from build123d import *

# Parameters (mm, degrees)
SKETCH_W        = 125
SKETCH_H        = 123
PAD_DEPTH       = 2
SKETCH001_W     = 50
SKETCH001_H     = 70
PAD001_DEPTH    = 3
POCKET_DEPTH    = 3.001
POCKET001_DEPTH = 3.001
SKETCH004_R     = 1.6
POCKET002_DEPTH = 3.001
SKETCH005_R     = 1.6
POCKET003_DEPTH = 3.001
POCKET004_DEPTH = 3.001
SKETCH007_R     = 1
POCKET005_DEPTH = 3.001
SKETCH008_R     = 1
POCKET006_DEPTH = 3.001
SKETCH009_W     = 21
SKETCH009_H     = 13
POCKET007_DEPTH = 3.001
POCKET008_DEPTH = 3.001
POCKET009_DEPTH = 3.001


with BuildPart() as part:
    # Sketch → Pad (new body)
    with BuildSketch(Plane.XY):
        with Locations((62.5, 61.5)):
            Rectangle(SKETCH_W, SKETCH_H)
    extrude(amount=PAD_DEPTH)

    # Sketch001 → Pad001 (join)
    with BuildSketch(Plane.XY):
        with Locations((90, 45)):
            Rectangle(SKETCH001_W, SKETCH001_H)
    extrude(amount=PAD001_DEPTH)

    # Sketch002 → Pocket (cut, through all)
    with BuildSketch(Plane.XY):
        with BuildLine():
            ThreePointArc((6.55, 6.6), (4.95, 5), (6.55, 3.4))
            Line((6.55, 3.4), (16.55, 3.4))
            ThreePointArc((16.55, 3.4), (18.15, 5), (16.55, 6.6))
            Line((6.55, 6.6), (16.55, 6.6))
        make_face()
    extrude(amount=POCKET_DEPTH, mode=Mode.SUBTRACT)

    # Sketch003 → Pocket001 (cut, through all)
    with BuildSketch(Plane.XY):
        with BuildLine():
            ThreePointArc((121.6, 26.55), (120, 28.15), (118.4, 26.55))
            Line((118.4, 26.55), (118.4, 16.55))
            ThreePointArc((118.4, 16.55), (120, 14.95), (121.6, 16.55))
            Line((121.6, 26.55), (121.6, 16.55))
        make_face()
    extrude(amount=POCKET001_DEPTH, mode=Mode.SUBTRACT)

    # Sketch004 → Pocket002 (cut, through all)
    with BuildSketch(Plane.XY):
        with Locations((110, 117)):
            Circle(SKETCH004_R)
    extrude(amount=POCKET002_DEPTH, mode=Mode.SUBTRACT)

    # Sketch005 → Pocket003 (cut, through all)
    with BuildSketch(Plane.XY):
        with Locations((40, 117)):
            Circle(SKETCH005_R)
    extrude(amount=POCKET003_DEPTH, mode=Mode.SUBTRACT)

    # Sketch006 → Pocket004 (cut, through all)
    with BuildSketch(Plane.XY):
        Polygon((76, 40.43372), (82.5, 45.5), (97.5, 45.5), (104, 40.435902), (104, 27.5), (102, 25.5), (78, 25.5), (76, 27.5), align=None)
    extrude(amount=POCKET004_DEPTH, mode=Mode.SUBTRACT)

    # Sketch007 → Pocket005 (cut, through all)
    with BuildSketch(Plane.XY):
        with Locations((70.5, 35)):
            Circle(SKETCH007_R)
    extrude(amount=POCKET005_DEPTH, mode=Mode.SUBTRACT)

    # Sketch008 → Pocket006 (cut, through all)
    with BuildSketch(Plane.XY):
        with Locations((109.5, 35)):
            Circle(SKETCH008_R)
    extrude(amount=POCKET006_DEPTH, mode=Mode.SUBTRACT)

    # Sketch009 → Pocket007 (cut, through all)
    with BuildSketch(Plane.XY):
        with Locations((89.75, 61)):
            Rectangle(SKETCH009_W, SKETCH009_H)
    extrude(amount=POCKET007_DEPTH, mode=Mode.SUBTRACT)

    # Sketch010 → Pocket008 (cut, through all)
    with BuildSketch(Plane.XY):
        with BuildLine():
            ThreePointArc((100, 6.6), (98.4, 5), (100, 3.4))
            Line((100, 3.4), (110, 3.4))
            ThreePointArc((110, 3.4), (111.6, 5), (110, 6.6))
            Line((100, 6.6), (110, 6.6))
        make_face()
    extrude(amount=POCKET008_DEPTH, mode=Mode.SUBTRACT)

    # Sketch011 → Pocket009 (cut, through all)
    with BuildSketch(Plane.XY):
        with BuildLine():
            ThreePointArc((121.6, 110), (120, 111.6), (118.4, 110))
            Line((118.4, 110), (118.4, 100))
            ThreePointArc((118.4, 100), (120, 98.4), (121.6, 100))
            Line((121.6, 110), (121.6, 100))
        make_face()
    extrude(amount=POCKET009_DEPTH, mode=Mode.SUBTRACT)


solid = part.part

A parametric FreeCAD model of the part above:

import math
import FreeCAD as App
import Part
import Sketcher
from FreeCAD import Vector

doc = App.newDocument("Part")
body = doc.addObject("PartDesign::Body", "Body")

# Sketch on XY plane
sketch1 = body.newObject("Sketcher::SketchObject", "Sketch")
sketch1.AttachmentSupport = (doc.getObject("XY_Plane"), [""])
sketch1.MapMode = "FlatFace"
sketch1.addGeometry(Part.LineSegment(Vector(0, 123, 0), Vector(0, 0, 0)), False)
sketch1.addGeometry(Part.LineSegment(Vector(0, 0, 0), Vector(125, 0, 0)), False)
sketch1.addGeometry(Part.LineSegment(Vector(125, 0, 0), Vector(125, 123, 0)), False)
sketch1.addGeometry(Part.LineSegment(Vector(125, 123, 0), Vector(0, 123, 0)), False)
sketch1.addConstraint(Sketcher.Constraint("Coincident", 0, 2, 1, 1))
sketch1.addConstraint(Sketcher.Constraint("Coincident", 1, 2, 2, 1))
sketch1.addConstraint(Sketcher.Constraint("Coincident", 2, 2, 3, 1))
sketch1.addConstraint(Sketcher.Constraint("Coincident", 3, 2, 0, 1))
sketch1.addConstraint(Sketcher.Constraint("Vertical", 0))
sketch1.addConstraint(Sketcher.Constraint("Horizontal", 1))
sketch1.addConstraint(Sketcher.Constraint("Vertical", 2))
sketch1.addConstraint(Sketcher.Constraint("Horizontal", 3))
sketch1.addConstraint(Sketcher.Constraint("Coincident", 0, 2, -1, 1))
sketch1.addConstraint(Sketcher.Constraint("DistanceX", 1, 1, 1, 2, 125.0))
sketch1.addConstraint(Sketcher.Constraint("DistanceY", 0, 2, 0, 1, 123.0))
pad1 = body.newObject("PartDesign::Pad", "Pad")
pad1.Profile = sketch1
pad1.Length = 2

# Sketch on XY plane
sketch2 = body.newObject("Sketcher::SketchObject", "Sketch001")
sketch2.AttachmentSupport = (doc.getObject("XY_Plane"), [""])
sketch2.MapMode = "FlatFace"
sketch2.addGeometry(Part.LineSegment(Vector(65, 80, 0), Vector(65, 10, 0)), False)
sketch2.addGeometry(Part.LineSegment(Vector(65, 10, 0), Vector(115, 10, 0)), False)
sketch2.addGeometry(Part.LineSegment(Vector(115, 10, 0), Vector(115, 80, 0)), False)
sketch2.addGeometry(Part.LineSegment(Vector(115, 80, 0), Vector(65, 80, 0)), False)
sketch2.addConstraint(Sketcher.Constraint("Coincident", 0, 2, 1, 1))
sketch2.addConstraint(Sketcher.Constraint("Coincident", 1, 2, 2, 1))
sketch2.addConstraint(Sketcher.Constraint("Coincident", 2, 2, 3, 1))
sketch2.addConstraint(Sketcher.Constraint("Coincident", 3, 2, 0, 1))
sketch2.addConstraint(Sketcher.Constraint("Vertical", 0))
sketch2.addConstraint(Sketcher.Constraint("Horizontal", 1))
sketch2.addConstraint(Sketcher.Constraint("Vertical", 2))
sketch2.addConstraint(Sketcher.Constraint("Horizontal", 3))
sketch2.addConstraint(Sketcher.Constraint("DistanceX", 1, 1, 1, 2, 50.0))
sketch2.addConstraint(Sketcher.Constraint("DistanceY", 0, 2, 0, 1, 70.0))
sketch2.addConstraint(Sketcher.Constraint("DistanceX", -1, 1, 0, 2, 65.0))
sketch2.addConstraint(Sketcher.Constraint("DistanceY", -1, 1, 0, 2, 10.0))
pad2 = body.newObject("PartDesign::Pad", "Pad001")
pad2.Profile = sketch2
pad2.Length = 3

# Sketch on XY plane
sketch3 = body.newObject("Sketcher::SketchObject", "Sketch002")
sketch3.AttachmentSupport = (doc.getObject("XY_Plane"), [""])
sketch3.MapMode = "FlatFace"
sketch3.addGeometry(Part.ArcOfCircle(Part.Circle(Vector(6.5, 5, 0), Vector(0, 0, 1), 1.6), math.radians(90), math.radians(270)), False)
sketch3.addGeometry(Part.LineSegment(Vector(6.5, 3.4, 0), Vector(16.6, 3.4, 0)), False)
sketch3.addGeometry(Part.ArcOfCircle(Part.Circle(Vector(16.6, 5, 0), Vector(0, 0, 1), 1.6), math.radians(-90), math.radians(90)), False)
sketch3.addGeometry(Part.LineSegment(Vector(16.6, 6.6, 0), Vector(6.5, 6.6, 0)), False)
sketch3.addConstraint(Sketcher.Constraint("Tangent", 0, 2, 1, 1))
sketch3.addConstraint(Sketcher.Constraint("Tangent", 1, 2, 2, 1))
sketch3.addConstraint(Sketcher.Constraint("Tangent", 2, 2, 3, 1))
sketch3.addConstraint(Sketcher.Constraint("Tangent", 3, 2, 0, 1))
sketch3.addConstraint(Sketcher.Constraint("Horizontal", 1))
sketch3.addConstraint(Sketcher.Constraint("Horizontal", 3))
sketch3.addConstraint(Sketcher.Constraint("Radius", 0, 1.6))
sketch3.addConstraint(Sketcher.Constraint("DistanceX", 1, 1, 1, 2, 10.0))
sketch3.addConstraint(Sketcher.Constraint("DistanceY", -1, 1, 0, 3, 5.0))
sketch3.addConstraint(Sketcher.Constraint("DistanceX", -1, 1, 0, 3, 6.55))
pocket1 = body.newObject("PartDesign::Pocket", "Pocket")
pocket1.Profile = sketch3
pocket1.Type = "ThroughAll"
pocket1.Reversed = True

# Sketch on XY plane
sketch4 = body.newObject("Sketcher::SketchObject", "Sketch003")
sketch4.AttachmentSupport = (doc.getObject("XY_Plane"), [""])
sketch4.MapMode = "FlatFace"
sketch4.addGeometry(Part.ArcOfCircle(Part.Circle(Vector(120, 26.6, 0), Vector(0, 0, 1), 1.6), math.radians(0), math.radians(180)), False)
sketch4.addGeometry(Part.LineSegment(Vector(118.4, 26.6, 0), Vector(118.4, 16.6, 0)), False)
sketch4.addGeometry(Part.ArcOfCircle(Part.Circle(Vector(120, 16.6, 0), Vector(0, 0, 1), 1.6), math.radians(180), math.radians(360)), False)
sketch4.addGeometry(Part.LineSegment(Vector(121.6, 16.6, 0), Vector(121.6, 26.6, 0)), False)
sketch4.addConstraint(Sketcher.Constraint("Tangent", 0, 2, 1, 1))
sketch4.addConstraint(Sketcher.Constraint("Tangent", 1, 2, 2, 1))
sketch4.addConstraint(Sketcher.Constraint("Tangent", 2, 2, 3, 1))
sketch4.addConstraint(Sketcher.Constraint("Tangent", 3, 2, 0, 1))
sketch4.addConstraint(Sketcher.Constraint("Vertical", 1))
sketch4.addConstraint(Sketcher.Constraint("Vertical", 3))
sketch4.addConstraint(Sketcher.Constraint("Radius", 0, 1.6))
sketch4.addConstraint(Sketcher.Constraint("DistanceY", 1, 2, 1, 1, 10.0))
sketch4.addConstraint(Sketcher.Constraint("DistanceX", -1, 1, 0, 3, 120.0))
sketch4.addConstraint(Sketcher.Constraint("DistanceY", -1, 1, 0, 3, 26.55))
pocket2 = body.newObject("PartDesign::Pocket", "Pocket001")
pocket2.Profile = sketch4
pocket2.Type = "ThroughAll"
pocket2.Reversed = True

# Sketch on XY plane
sketch5 = body.newObject("Sketcher::SketchObject", "Sketch004")
sketch5.AttachmentSupport = (doc.getObject("XY_Plane"), [""])
sketch5.MapMode = "FlatFace"
sketch5.addGeometry(Part.Circle(Vector(110, 117, 0), Vector(0, 0, 1), 1.6), False)
sketch5.addConstraint(Sketcher.Constraint("Diameter", 0, 3.2))
sketch5.addConstraint(Sketcher.Constraint("DistanceX", -1, 1, 0, 3, 110.0))
sketch5.addConstraint(Sketcher.Constraint("DistanceY", -1, 1, 0, 3, 117.0))
pocket3 = body.newObject("PartDesign::Pocket", "Pocket002")
pocket3.Profile = sketch5
pocket3.Type = "ThroughAll"
pocket3.Reversed = True

# Sketch on XY plane
sketch6 = body.newObject("Sketcher::SketchObject", "Sketch005")
sketch6.AttachmentSupport = (doc.getObject("XY_Plane"), [""])
sketch6.MapMode = "FlatFace"
sketch6.addGeometry(Part.Circle(Vector(40, 117, 0), Vector(0, 0, 1), 1.6), False)
sketch6.addConstraint(Sketcher.Constraint("Diameter", 0, 3.2))
sketch6.addConstraint(Sketcher.Constraint("DistanceX", -1, 1, 0, 3, 40.0))
sketch6.addConstraint(Sketcher.Constraint("DistanceY", -1, 1, 0, 3, 117.0))
pocket4 = body.newObject("PartDesign::Pocket", "Pocket003")
pocket4.Profile = sketch6
pocket4.Type = "ThroughAll"
pocket4.Reversed = True

# Sketch on XY plane
sketch7 = body.newObject("Sketcher::SketchObject", "Sketch006")
sketch7.AttachmentSupport = (doc.getObject("XY_Plane"), [""])
sketch7.MapMode = "FlatFace"
sketch7.addGeometry(Part.LineSegment(Vector(82.5, 45.5, 0), Vector(76, 40.4, 0)), False)
sketch7.addGeometry(Part.LineSegment(Vector(76, 40.4, 0), Vector(76, 27.5, 0)), False)
sketch7.addGeometry(Part.LineSegment(Vector(76, 27.5, 0), Vector(78, 25.5, 0)), False)
sketch7.addGeometry(Part.LineSegment(Vector(78, 25.5, 0), Vector(102, 25.5, 0)), False)
sketch7.addGeometry(Part.LineSegment(Vector(102, 25.5, 0), Vector(104, 27.5, 0)), False)
sketch7.addGeometry(Part.LineSegment(Vector(104, 27.5, 0), Vector(104, 40.4, 0)), False)
sketch7.addGeometry(Part.LineSegment(Vector(104, 40.4, 0), Vector(97.5, 45.5, 0)), False)
sketch7.addGeometry(Part.LineSegment(Vector(97.5, 45.5, 0), Vector(82.5, 45.5, 0)), False)
sketch7.addConstraint(Sketcher.Constraint("Coincident", 0, 2, 1, 1))
sketch7.addConstraint(Sketcher.Constraint("Coincident", 1, 2, 2, 1))
sketch7.addConstraint(Sketcher.Constraint("Coincident", 2, 2, 3, 1))
sketch7.addConstraint(Sketcher.Constraint("Coincident", 3, 2, 4, 1))
sketch7.addConstraint(Sketcher.Constraint("Coincident", 4, 2, 5, 1))
sketch7.addConstraint(Sketcher.Constraint("Coincident", 5, 2, 6, 1))
sketch7.addConstraint(Sketcher.Constraint("Coincident", 6, 2, 7, 1))
sketch7.addConstraint(Sketcher.Constraint("Coincident", 7, 2, 0, 1))
sketch7.addConstraint(Sketcher.Constraint("Vertical", 1))
sketch7.addConstraint(Sketcher.Constraint("Horizontal", 3))
sketch7.addConstraint(Sketcher.Constraint("Vertical", 5))
sketch7.addConstraint(Sketcher.Constraint("Horizontal", 7))
sketch7.addConstraint(Sketcher.Constraint("Perpendicular", 2, 4))
sketch7.addConstraint(Sketcher.Constraint("Horizontal", 1, 2, 4, 2))
sketch7.addConstraint(Sketcher.Constraint("Equal", 2, 4))
sketch7.addConstraint(Sketcher.Constraint("DistanceX", 3, 1, 3, 2, 24.0))
sketch7.addConstraint(Sketcher.Constraint("DistanceX", 7, 2, 7, 1, 15.0))
sketch7.addConstraint(Sketcher.Constraint("DistanceX", -1, 1, 0, 2, 76.0))
sketch7.addConstraint(Sketcher.Constraint("DistanceX", -1, 1, 2, 2, 78.0))
sketch7.addConstraint(Sketcher.Constraint("DistanceY", 4, 2, 6, 2, 18.0))
sketch7.addConstraint(Sketcher.Constraint("DistanceY", -1, 1, 1, 2, 27.5))
sketch7.addConstraint(Sketcher.Constraint("DistanceX", -1, 1, 6, 2, 97.5))
sketch7.addConstraint(Sketcher.Constraint("DistanceY", 5, 1, 5, 2, 12.935902))
sketch7.addConstraint(Sketcher.Constraint("DistanceY", 1, 2, 1, 1, 12.93372))
pocket5 = body.newObject("PartDesign::Pocket", "Pocket004")
pocket5.Profile = sketch7
pocket5.Type = "ThroughAll"
pocket5.Reversed = True

# Sketch on XY plane
sketch8 = body.newObject("Sketcher::SketchObject", "Sketch007")
sketch8.AttachmentSupport = (doc.getObject("XY_Plane"), [""])
sketch8.MapMode = "FlatFace"
sketch8.addGeometry(Part.Circle(Vector(70.5, 35, 0), Vector(0, 0, 1), 1), False)
sketch8.addConstraint(Sketcher.Constraint("Diameter", 0, 2.0))
sketch8.addConstraint(Sketcher.Constraint("DistanceY", -1, 1, 0, 3, 35.0))
sketch8.addConstraint(Sketcher.Constraint("DistanceX", -1, 1, 0, 3, 70.5))
pocket6 = body.newObject("PartDesign::Pocket", "Pocket005")
pocket6.Profile = sketch8
pocket6.Type = "ThroughAll"
pocket6.Reversed = True

# Sketch on XY plane
sketch9 = body.newObject("Sketcher::SketchObject", "Sketch008")
sketch9.AttachmentSupport = (doc.getObject("XY_Plane"), [""])
sketch9.MapMode = "FlatFace"
sketch9.addGeometry(Part.Circle(Vector(109.5, 35, 0), Vector(0, 0, 1), 1), False)
sketch9.addConstraint(Sketcher.Constraint("Diameter", 0, 2.0))
sketch9.addConstraint(Sketcher.Constraint("DistanceY", -1, 1, 0, 3, 35.0))
sketch9.addConstraint(Sketcher.Constraint("DistanceX", -1, 1, 0, 3, 109.5))
pocket7 = body.newObject("PartDesign::Pocket", "Pocket006")
pocket7.Profile = sketch9
pocket7.Type = "ThroughAll"
pocket7.Reversed = True

# Sketch on XY plane
sketch10 = body.newObject("Sketcher::SketchObject", "Sketch009")
sketch10.AttachmentSupport = (doc.getObject("XY_Plane"), [""])
sketch10.MapMode = "FlatFace"
sketch10.addGeometry(Part.LineSegment(Vector(79, 68, 0), Vector(79, 54, 0)), False)
sketch10.addGeometry(Part.LineSegment(Vector(79, 54, 0), Vector(100, 54, 0)), False)
sketch10.addGeometry(Part.LineSegment(Vector(100, 54, 0), Vector(100, 68, 0)), False)
sketch10.addGeometry(Part.LineSegment(Vector(100, 68, 0), Vector(79, 68, 0)), False)
sketch10.addConstraint(Sketcher.Constraint("Coincident", 0, 2, 1, 1))
sketch10.addConstraint(Sketcher.Constraint("Coincident", 1, 2, 2, 1))
sketch10.addConstraint(Sketcher.Constraint("Coincident", 2, 2, 3, 1))
sketch10.addConstraint(Sketcher.Constraint("Coincident", 3, 2, 0, 1))
sketch10.addConstraint(Sketcher.Constraint("Vertical", 0))
sketch10.addConstraint(Sketcher.Constraint("Horizontal", 1))
sketch10.addConstraint(Sketcher.Constraint("Vertical", 2))
sketch10.addConstraint(Sketcher.Constraint("Horizontal", 3))
sketch10.addConstraint(Sketcher.Constraint("DistanceX", 1, 1, 1, 2, 21.0))
sketch10.addConstraint(Sketcher.Constraint("DistanceY", 0, 2, 0, 1, 13.0))
sketch10.addConstraint(Sketcher.Constraint("DistanceY", -1, 1, 0, 2, 54.5))
sketch10.addConstraint(Sketcher.Constraint("DistanceX", -1, 1, 0, 2, 79.25))
pocket8 = body.newObject("PartDesign::Pocket", "Pocket007")
pocket8.Profile = sketch10
pocket8.Type = "ThroughAll"
pocket8.Reversed = True

# Sketch on XY plane
sketch11 = body.newObject("Sketcher::SketchObject", "Sketch010")
sketch11.AttachmentSupport = (doc.getObject("XY_Plane"), [""])
sketch11.MapMode = "FlatFace"
sketch11.addGeometry(Part.ArcOfCircle(Part.Circle(Vector(100, 5, 0), Vector(0, 0, 1), 1.6), math.radians(90), math.radians(270)), False)
sketch11.addGeometry(Part.LineSegment(Vector(100, 3.4, 0), Vector(110, 3.4, 0)), False)
sketch11.addGeometry(Part.ArcOfCircle(Part.Circle(Vector(110, 5, 0), Vector(0, 0, 1), 1.6), math.radians(-90), math.radians(90)), False)
sketch11.addGeometry(Part.LineSegment(Vector(110, 6.6, 0), Vector(100, 6.6, 0)), False)
sketch11.addConstraint(Sketcher.Constraint("Tangent", 0, 2, 1, 1))
sketch11.addConstraint(Sketcher.Constraint("Tangent", 1, 2, 2, 1))
sketch11.addConstraint(Sketcher.Constraint("Tangent", 2, 2, 3, 1))
sketch11.addConstraint(Sketcher.Constraint("Tangent", 3, 2, 0, 1))
sketch11.addConstraint(Sketcher.Constraint("Horizontal", 1))
sketch11.addConstraint(Sketcher.Constraint("Horizontal", 3))
sketch11.addConstraint(Sketcher.Constraint("Radius", 0, 1.6))
sketch11.addConstraint(Sketcher.Constraint("DistanceX", 1, 1, 1, 2, 10.0))
sketch11.addConstraint(Sketcher.Constraint("DistanceX", -1, 1, 0, 3, 100.0))
sketch11.addConstraint(Sketcher.Constraint("DistanceY", -1, 1, 0, 3, 5.0))
pocket9 = body.newObject("PartDesign::Pocket", "Pocket008")
pocket9.Profile = sketch11
pocket9.Type = "ThroughAll"
pocket9.Reversed = True

# Sketch on XY plane
sketch12 = body.newObject("Sketcher::SketchObject", "Sketch011")
sketch12.AttachmentSupport = (doc.getObject("XY_Plane"), [""])
sketch12.MapMode = "FlatFace"
sketch12.addGeometry(Part.ArcOfCircle(Part.Circle(Vector(120, 110, 0), Vector(0, 0, 1), 1.6), math.radians(0), math.radians(180)), False)
sketch12.addGeometry(Part.LineSegment(Vector(118.4, 110, 0), Vector(118.4, 100, 0)), False)
sketch12.addGeometry(Part.ArcOfCircle(Part.Circle(Vector(120, 100, 0), Vector(0, 0, 1), 1.6), math.radians(180), math.radians(360)), False)
sketch12.addGeometry(Part.LineSegment(Vector(121.6, 100, 0), Vector(121.6, 110, 0)), False)
sketch12.addConstraint(Sketcher.Constraint("Tangent", 0, 2, 1, 1))
sketch12.addConstraint(Sketcher.Constraint("Tangent", 1, 2, 2, 1))
sketch12.addConstraint(Sketcher.Constraint("Tangent", 2, 2, 3, 1))
sketch12.addConstraint(Sketcher.Constraint("Tangent", 3, 2, 0, 1))
sketch12.addConstraint(Sketcher.Constraint("Vertical", 1))
sketch12.addConstraint(Sketcher.Constraint("Vertical", 3))
sketch12.addConstraint(Sketcher.Constraint("Radius", 0, 1.6))
sketch12.addConstraint(Sketcher.Constraint("DistanceY", 1, 2, 1, 1, 10.0))
sketch12.addConstraint(Sketcher.Constraint("DistanceX", -1, 1, 0, 3, 120.0))
sketch12.addConstraint(Sketcher.Constraint("DistanceY", -1, 1, 0, 3, 110.0))
pocket10 = body.newObject("PartDesign::Pocket", "Pocket009")
pocket10.Profile = sketch12
pocket10.Type = "ThroughAll"
pocket10.Reversed = True

doc.recompute()
